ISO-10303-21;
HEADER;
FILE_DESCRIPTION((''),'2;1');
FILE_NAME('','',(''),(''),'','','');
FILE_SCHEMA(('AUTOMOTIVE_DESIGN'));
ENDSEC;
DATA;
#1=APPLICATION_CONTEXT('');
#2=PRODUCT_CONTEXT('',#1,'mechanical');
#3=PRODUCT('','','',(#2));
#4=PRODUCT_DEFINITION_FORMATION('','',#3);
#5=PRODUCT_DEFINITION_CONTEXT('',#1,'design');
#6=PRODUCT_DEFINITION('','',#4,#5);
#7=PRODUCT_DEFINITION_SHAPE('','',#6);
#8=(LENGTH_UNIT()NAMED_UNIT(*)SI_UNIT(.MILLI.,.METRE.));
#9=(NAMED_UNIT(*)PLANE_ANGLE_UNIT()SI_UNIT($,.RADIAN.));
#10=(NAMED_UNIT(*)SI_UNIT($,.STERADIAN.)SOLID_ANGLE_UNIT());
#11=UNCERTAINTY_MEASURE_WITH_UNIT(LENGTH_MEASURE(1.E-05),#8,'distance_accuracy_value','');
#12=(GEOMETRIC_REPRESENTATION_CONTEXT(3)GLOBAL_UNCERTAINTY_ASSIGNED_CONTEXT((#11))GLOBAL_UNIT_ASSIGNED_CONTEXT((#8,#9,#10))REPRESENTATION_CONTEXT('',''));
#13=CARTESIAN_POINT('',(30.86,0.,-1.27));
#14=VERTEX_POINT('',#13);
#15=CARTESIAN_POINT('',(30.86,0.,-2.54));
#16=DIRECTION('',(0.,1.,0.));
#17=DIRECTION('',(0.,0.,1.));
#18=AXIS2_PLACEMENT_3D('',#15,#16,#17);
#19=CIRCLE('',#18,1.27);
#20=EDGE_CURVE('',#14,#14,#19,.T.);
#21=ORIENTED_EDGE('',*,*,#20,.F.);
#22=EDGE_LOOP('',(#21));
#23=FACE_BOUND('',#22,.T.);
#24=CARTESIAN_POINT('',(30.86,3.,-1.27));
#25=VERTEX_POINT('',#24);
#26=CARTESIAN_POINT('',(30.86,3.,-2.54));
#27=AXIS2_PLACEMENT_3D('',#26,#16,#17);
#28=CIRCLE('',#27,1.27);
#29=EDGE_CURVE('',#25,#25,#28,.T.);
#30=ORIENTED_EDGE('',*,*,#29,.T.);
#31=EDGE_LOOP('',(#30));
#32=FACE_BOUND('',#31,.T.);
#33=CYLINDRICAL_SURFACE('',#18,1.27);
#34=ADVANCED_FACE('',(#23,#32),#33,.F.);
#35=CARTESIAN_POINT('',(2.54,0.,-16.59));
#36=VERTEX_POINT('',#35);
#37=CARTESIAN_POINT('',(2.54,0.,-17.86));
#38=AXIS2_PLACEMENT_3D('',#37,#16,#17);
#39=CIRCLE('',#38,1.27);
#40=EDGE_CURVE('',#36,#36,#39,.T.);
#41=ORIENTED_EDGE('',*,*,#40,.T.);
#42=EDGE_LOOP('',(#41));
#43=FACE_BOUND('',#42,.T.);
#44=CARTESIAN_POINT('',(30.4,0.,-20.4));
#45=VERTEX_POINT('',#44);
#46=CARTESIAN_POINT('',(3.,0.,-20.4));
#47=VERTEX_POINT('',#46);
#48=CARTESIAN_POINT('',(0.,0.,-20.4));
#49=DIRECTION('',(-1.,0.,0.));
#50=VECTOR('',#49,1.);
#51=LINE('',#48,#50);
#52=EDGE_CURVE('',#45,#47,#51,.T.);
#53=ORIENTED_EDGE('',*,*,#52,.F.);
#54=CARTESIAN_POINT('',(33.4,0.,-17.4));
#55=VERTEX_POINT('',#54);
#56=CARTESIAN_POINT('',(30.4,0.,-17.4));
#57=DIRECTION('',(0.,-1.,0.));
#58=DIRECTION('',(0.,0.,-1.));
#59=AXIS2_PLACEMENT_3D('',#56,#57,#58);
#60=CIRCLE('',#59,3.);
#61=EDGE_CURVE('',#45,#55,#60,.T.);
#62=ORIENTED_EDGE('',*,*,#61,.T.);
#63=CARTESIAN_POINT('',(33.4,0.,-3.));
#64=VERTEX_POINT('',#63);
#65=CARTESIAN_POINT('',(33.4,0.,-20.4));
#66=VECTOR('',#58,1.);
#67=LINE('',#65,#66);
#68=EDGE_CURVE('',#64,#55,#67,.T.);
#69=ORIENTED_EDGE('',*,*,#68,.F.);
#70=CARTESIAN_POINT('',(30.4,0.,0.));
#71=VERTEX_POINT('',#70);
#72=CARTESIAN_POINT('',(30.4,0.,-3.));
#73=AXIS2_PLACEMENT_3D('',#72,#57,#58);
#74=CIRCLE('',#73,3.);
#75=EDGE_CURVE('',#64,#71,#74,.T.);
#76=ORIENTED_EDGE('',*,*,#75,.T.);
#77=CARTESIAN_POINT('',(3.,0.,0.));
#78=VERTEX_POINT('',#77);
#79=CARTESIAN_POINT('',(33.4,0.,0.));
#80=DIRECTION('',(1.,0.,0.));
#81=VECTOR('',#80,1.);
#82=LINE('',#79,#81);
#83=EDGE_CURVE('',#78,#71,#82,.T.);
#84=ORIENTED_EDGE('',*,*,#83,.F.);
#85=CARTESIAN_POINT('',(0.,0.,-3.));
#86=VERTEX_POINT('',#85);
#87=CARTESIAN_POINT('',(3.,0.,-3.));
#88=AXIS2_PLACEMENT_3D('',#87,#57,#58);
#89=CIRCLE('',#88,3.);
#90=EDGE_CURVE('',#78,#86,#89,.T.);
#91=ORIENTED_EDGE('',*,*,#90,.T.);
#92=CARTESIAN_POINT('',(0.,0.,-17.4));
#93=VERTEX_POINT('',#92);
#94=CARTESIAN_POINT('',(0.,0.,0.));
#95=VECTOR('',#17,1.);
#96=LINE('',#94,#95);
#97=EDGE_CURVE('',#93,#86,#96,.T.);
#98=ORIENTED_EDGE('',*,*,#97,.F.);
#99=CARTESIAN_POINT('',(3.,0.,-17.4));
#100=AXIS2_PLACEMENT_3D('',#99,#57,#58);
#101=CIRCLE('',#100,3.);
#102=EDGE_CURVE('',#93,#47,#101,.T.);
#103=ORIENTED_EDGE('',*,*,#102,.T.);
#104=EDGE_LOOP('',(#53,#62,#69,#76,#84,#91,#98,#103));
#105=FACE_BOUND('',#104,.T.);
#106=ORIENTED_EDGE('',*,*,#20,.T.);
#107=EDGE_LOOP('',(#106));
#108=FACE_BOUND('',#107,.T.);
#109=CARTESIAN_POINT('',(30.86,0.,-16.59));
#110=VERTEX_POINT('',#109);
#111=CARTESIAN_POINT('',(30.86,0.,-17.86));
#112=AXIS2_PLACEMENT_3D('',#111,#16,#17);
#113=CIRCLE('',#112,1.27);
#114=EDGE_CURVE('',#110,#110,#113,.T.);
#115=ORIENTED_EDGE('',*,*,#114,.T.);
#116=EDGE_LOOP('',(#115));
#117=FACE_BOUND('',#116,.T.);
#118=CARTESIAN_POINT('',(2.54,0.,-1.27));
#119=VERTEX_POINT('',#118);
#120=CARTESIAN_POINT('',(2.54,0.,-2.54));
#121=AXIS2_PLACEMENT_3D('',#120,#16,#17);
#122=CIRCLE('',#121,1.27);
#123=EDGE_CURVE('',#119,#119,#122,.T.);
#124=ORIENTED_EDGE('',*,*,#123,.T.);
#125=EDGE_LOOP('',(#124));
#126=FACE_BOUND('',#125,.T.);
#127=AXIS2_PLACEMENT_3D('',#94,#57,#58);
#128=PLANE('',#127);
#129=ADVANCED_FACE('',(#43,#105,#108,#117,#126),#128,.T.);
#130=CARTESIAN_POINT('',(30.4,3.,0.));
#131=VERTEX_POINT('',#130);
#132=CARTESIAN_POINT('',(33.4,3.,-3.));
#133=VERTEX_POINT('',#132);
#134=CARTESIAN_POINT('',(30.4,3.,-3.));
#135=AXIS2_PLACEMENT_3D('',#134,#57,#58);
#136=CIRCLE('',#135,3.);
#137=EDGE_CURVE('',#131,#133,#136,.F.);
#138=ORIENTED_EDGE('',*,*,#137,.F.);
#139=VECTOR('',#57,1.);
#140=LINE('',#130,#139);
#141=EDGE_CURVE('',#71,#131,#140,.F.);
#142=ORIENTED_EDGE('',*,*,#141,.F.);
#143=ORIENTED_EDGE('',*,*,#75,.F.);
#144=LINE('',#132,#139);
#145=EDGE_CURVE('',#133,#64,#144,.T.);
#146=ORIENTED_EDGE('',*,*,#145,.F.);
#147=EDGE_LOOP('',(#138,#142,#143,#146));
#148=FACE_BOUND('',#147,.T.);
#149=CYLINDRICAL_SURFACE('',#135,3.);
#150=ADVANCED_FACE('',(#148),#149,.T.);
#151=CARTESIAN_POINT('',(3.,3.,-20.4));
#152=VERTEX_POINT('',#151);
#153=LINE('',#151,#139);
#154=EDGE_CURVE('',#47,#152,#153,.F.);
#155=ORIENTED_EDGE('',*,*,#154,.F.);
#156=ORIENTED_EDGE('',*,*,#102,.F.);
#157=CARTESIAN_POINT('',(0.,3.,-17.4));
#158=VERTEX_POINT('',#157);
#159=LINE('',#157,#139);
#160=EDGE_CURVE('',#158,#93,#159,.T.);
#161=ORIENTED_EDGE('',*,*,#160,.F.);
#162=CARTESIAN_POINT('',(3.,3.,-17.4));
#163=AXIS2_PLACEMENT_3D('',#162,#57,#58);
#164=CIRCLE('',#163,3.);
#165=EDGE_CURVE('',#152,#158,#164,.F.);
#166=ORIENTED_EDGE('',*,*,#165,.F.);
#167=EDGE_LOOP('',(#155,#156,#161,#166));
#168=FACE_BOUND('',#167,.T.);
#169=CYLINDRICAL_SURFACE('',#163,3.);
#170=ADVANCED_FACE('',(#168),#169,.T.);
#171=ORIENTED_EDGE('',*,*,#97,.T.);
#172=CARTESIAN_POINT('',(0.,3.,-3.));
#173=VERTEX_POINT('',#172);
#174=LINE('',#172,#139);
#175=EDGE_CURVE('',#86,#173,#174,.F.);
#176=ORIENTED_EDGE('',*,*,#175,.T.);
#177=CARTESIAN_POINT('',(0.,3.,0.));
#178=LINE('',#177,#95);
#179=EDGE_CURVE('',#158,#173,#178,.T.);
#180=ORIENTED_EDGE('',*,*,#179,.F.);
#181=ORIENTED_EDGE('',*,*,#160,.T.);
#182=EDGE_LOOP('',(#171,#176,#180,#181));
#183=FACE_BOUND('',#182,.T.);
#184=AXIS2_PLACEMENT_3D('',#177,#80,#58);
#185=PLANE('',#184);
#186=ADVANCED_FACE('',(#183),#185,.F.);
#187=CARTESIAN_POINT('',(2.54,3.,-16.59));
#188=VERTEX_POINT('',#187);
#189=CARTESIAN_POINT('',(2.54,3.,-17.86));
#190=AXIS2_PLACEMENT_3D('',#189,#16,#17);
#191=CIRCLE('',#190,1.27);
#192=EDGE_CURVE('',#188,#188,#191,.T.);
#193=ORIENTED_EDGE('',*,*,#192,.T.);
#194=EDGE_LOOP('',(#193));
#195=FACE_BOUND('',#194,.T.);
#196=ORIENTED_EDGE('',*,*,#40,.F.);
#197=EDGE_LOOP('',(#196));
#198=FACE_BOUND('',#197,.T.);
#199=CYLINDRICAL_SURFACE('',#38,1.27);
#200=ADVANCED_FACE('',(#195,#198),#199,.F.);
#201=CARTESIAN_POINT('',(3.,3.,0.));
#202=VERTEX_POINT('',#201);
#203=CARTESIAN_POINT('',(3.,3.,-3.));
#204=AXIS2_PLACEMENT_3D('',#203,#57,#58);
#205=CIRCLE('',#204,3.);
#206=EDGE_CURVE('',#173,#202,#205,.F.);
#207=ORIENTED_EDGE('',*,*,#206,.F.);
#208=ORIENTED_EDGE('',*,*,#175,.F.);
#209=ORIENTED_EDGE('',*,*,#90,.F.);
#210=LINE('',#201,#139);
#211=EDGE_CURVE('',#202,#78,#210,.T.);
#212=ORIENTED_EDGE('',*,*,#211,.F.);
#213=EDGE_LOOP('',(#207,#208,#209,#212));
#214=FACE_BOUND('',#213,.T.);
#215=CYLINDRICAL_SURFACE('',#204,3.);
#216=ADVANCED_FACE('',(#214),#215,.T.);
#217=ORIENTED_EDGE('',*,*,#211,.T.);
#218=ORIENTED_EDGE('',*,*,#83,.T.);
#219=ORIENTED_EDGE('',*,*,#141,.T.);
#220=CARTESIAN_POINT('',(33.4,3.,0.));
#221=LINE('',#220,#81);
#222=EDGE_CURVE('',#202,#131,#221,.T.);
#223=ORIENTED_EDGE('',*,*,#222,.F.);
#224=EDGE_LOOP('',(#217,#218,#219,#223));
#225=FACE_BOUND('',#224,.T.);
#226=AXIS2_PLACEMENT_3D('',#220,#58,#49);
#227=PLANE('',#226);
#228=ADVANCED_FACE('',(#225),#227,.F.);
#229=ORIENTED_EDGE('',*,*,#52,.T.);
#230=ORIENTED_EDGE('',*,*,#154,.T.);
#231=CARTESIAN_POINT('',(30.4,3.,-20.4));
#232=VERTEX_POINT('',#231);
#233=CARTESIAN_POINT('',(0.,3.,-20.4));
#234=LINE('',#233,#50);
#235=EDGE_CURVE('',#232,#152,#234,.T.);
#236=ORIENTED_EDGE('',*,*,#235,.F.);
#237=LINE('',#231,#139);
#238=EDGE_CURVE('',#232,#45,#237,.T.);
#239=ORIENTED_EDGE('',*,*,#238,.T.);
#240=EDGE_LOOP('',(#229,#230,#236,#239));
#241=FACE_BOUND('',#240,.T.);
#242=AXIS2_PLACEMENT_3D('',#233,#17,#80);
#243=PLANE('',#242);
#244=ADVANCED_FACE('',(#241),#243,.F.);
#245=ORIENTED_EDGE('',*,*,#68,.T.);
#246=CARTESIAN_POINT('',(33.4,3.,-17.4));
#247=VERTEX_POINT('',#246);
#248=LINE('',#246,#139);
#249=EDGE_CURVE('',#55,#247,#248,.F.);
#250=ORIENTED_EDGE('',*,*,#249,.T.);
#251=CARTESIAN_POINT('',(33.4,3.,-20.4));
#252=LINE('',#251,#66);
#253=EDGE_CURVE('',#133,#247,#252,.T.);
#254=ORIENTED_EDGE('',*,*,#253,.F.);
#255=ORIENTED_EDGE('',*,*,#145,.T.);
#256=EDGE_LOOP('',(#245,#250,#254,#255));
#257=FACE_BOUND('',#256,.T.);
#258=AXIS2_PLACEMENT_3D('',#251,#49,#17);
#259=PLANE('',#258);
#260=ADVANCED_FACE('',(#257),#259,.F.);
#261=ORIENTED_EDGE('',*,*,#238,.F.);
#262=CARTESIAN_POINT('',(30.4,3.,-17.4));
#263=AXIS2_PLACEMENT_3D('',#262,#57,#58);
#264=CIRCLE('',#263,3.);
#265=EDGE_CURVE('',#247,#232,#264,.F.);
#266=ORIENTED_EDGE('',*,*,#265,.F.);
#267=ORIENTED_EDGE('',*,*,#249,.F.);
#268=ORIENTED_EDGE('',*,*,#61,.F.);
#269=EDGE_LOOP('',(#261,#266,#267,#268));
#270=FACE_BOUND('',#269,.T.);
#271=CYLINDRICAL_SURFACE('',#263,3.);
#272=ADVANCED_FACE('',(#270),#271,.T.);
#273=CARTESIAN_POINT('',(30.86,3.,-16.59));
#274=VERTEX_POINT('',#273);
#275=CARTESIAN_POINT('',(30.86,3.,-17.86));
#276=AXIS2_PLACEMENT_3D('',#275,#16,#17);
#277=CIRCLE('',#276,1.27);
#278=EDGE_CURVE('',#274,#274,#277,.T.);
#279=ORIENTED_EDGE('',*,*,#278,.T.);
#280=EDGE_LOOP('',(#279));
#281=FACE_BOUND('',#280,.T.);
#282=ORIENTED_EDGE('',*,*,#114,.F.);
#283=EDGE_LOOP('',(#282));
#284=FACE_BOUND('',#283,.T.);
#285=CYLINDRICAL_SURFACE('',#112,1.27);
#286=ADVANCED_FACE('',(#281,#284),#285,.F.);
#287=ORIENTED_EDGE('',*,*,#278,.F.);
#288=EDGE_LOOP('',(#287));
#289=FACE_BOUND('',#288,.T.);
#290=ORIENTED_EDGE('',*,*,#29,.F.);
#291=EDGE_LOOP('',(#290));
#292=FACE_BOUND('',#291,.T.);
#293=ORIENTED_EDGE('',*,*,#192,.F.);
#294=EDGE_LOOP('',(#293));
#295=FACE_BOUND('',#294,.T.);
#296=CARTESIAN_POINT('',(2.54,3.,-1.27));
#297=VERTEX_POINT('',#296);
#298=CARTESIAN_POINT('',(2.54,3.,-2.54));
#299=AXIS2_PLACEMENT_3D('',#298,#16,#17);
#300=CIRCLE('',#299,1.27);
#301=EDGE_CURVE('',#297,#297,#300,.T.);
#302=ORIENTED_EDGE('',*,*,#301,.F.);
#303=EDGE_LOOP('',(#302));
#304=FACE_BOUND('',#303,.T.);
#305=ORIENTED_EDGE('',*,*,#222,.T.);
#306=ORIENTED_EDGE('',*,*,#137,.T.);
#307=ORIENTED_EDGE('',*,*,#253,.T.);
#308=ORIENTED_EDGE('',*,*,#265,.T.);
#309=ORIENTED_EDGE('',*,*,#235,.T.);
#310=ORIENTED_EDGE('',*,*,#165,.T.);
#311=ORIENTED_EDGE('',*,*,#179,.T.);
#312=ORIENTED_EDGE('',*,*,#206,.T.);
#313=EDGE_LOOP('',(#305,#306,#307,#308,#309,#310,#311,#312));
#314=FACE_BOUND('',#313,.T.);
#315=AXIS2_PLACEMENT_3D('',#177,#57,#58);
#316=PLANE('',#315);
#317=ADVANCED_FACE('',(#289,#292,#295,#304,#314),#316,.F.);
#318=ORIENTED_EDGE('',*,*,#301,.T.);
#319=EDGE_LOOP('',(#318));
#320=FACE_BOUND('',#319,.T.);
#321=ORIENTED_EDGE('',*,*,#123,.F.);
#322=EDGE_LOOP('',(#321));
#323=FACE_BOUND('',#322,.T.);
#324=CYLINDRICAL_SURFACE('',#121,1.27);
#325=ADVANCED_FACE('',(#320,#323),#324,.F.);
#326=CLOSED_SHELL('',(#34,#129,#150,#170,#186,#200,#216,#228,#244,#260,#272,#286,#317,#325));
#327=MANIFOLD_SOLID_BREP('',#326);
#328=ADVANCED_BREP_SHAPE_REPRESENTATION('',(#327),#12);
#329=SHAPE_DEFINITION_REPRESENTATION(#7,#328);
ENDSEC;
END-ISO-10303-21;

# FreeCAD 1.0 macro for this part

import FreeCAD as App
import Part
import Sketcher


def edges_at(feature, points):
    """Names of the edges that pass closest to the given points."""
    edges = feature.Shape.Edges
    near = lambda p: min(range(len(edges)), key=lambda i: edges[i].distToShape(Part.Vertex(*p))[0])
    return sorted({f"Edge{near(p) + 1}" for p in points})

doc = App.newDocument("Part")
body = doc.addObject("PartDesign::Body", "Body")

# Sketch on XZ plane
sketch1 = doc.addObject("Sketcher::SketchObject", "Sketch")
body.addObject(sketch1)
sketch1.AttachmentSupport = (doc.XZ_Plane, [""])
sketch1.MapMode = "FlatFace"
sketch1.addGeometry([
    Part.LineSegment(App.Vector(0, -20.4, 0), App.Vector(0, 0, 0)),
    Part.LineSegment(App.Vector(0, 0, 0), App.Vector(33.4, 0, 0)),
    Part.LineSegment(App.Vector(33.4, 0, 0), App.Vector(33.4, -20.4, 0)),
    Part.LineSegment(App.Vector(33.4, -20.4, 0), App.Vector(0, -20.4, 0)),
], False)
sketch1.addConstraint([
    Sketcher.Constraint("Coincident", 0, 2, 1, 1),
    Sketcher.Constraint("Coincident", 1, 2, 2, 1),
    Sketcher.Constraint("Coincident", 2, 2, 3, 1),
    Sketcher.Constraint("Coincident", 3, 2, 0, 1),
    Sketcher.Constraint("Vertical", 0),
    Sketcher.Constraint("Horizontal", 1),
    Sketcher.Constraint("Vertical", 2),
    Sketcher.Constraint("Horizontal", 3),
    Sketcher.Constraint("Coincident", 0, 2, -1, 1),
    Sketcher.Constraint("DistanceX", 1, 1, 1, 2, 33.4),
    Sketcher.Constraint("DistanceY", 0, 1, 0, 2, 20.4),
])
pad1 = doc.addObject("PartDesign::Pad", "Pad")
body.addObject(pad1)
pad1.Profile = sketch1
pad1.Length = 3
pad1.Reversed = True

# Sketch on XZ plane
sketch2 = doc.addObject("Sketcher::SketchObject", "Sketch001")
body.addObject(sketch2)
sketch2.AttachmentSupport = (doc.XZ_Plane, [""])
sketch2.MapMode = "FlatFace"
sketch2.AttachmentOffset = App.Placement(App.Vector(0, 0, -3), App.Rotation())
sketch2.addGeometry([
    Part.Circle(App.Vector(2.54, -17.86, 0), App.Vector(0, 0, 1), 1.27),
    Part.Circle(App.Vector(2.54, -2.54, 0), App.Vector(0, 0, 1), 1.27),
    Part.Circle(App.Vector(30.86, -17.86, 0), App.Vector(0, 0, 1), 1.27),
    Part.Circle(App.Vector(30.86, -2.54, 0), App.Vector(0, 0, 1), 1.27),
], False)
sketch2.addConstraint([
    Sketcher.Constraint("Equal", 0, 1),
    Sketcher.Constraint("Equal", 1, 2),
    Sketcher.Constraint("Equal", 2, 3),
    Sketcher.Constraint("Horizontal", 0, 3, 2, 3),
    Sketcher.Constraint("Horizontal", 1, 3, 3, 3),
    Sketcher.Constraint("Vertical", 0, 3, 1, 3),
    Sketcher.Constraint("Vertical", 2, 3, 3, 3),
    Sketcher.Constraint("Diameter", 0, 2.54),
    Sketcher.Constraint("DistanceX", -1, 1, 0, 3, 2.54),
    Sketcher.Constraint("DistanceY", 0, 3, -1, 1, 17.86),
    Sketcher.Constraint("DistanceY", 1, 3, -1, 1, 2.54),
    Sketcher.Constraint("DistanceX", -1, 1, 2, 3, 30.86),
])
pocket1 = doc.addObject("PartDesign::Pocket", "Pocket")
body.addObject(pocket1)
pocket1.Profile = sketch2
pocket1.Type = "ThroughAll"
pocket1.Reversed = True
doc.recompute()

fillet = doc.addObject("PartDesign::Fillet", "Fillet")
body.addObject(fillet)
fillet.Base = (pocket1, edges_at(pocket1, [
    (0, 1.5, 0),
    (0, 1.5, -20.4),
    (33.4, 1.5, -20.4),
    (33.4, 1.5, 0),
]))
fillet.Radius = 3

doc.recompute()
